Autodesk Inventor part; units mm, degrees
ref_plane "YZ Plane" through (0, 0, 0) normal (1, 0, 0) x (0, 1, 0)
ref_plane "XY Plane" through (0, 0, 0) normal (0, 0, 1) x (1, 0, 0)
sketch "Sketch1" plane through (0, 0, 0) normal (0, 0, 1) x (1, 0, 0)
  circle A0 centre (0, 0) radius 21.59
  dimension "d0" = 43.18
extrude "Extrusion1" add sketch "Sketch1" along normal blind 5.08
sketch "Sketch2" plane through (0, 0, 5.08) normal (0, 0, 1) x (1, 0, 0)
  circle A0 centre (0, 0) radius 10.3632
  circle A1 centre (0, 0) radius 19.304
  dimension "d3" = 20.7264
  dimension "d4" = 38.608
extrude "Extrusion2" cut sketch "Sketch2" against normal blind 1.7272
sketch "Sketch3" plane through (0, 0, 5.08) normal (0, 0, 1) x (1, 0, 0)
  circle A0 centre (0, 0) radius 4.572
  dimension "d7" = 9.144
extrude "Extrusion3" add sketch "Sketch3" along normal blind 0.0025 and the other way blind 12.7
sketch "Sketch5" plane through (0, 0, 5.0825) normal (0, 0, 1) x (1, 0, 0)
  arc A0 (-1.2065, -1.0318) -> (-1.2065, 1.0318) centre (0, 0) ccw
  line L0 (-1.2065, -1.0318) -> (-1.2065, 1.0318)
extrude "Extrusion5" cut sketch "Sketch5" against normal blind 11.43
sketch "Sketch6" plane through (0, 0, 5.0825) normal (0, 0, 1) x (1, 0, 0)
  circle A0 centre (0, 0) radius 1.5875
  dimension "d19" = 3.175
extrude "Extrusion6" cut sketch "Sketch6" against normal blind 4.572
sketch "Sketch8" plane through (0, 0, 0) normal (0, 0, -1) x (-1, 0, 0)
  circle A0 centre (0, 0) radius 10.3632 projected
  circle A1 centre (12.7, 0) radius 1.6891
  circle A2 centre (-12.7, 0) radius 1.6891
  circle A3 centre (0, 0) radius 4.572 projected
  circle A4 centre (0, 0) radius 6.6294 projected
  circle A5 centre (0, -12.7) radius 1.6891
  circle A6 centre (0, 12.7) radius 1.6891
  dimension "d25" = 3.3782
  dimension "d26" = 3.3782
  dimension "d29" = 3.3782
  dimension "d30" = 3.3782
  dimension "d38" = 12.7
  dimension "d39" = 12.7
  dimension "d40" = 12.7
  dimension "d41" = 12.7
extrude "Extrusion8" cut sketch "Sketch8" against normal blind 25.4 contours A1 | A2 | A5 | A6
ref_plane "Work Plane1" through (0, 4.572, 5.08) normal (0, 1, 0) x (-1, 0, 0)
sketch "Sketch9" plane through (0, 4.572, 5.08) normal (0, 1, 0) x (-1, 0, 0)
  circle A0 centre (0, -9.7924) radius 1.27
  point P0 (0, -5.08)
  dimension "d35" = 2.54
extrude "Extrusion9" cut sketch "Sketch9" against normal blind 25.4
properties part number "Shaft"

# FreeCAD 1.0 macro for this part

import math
import FreeCAD as App
import Part
import Sketcher
from FreeCAD import Vector
Q = App.Units.Quantity

doc = App.newDocument("Part")
body = doc.addObject("PartDesign::Body", "Body")

# Sketch on XY plane
sketch1 = body.newObject("Sketcher::SketchObject", "Sketch")
sketch1.AttachmentSupport = (doc.getObject("XY_Plane"), [""])
sketch1.MapMode = "FlatFace"
sketch1.addGeometry(Part.Circle(Vector(0, 0, 0), Vector(0, 0, 1), 22), False)
sketch1.addConstraint([
    Sketcher.Constraint("Coincident", 0, 3, -1, 1),
    Sketcher.Constraint("Diameter", 0, Q("1.7 in")),
])
pad1 = body.newObject("PartDesign::Pad", "Pad")
pad1.Profile = sketch1
pad1.Length = Q("0.2 in")

# Sketch on XY plane
sketch2 = body.newObject("Sketcher::SketchObject", "Sketch001")
sketch2.AttachmentSupport = (doc.getObject("XY_Plane"), [""])
sketch2.MapMode = "FlatFace"
sketch2.AttachmentOffset = App.Placement(Vector(0, 0, 0.2 * 25.4), App.Rotation())
sketch2.addGeometry([
    Part.Circle(Vector(0, 0, 0), Vector(0, 0, 1), 19),
    Part.Circle(Vector(0, 0, 0), Vector(0, 0, 1), 10),
], False)
sketch2.addConstraint([
    Sketcher.Constraint("Coincident", 0, 3, -1, 1),
    Sketcher.Constraint("Coincident", 1, 3, -1, 1),
    Sketcher.Constraint("Diameter", 0, Q("1.52 in")),
    Sketcher.Constraint("Diameter", 1, Q("0.816 in")),
])
pocket1 = body.newObject("PartDesign::Pocket", "Pocket")
pocket1.Profile = sketch2
pocket1.Length = Q("0.068 in")

# Sketch on XY plane
sketch3 = body.newObject("Sketcher::SketchObject", "Sketch002")
sketch3.AttachmentSupport = (doc.getObject("XY_Plane"), [""])
sketch3.MapMode = "FlatFace"
sketch3.AttachmentOffset = App.Placement(Vector(0, 0, 0.2 * 25.4), App.Rotation())
sketch3.addGeometry(Part.Circle(Vector(0, 0, 0), Vector(0, 0, 1), 4.6), False)
sketch3.addConstraint([
    Sketcher.Constraint("Coincident", 0, 3, -1, 1),
    Sketcher.Constraint("Diameter", 0, Q("0.36 in")),
])
pad2 = body.newObject("PartDesign::Pad", "Pad001")
pad2.Profile = sketch3
pad2.Type = "TwoLengths"
pad2.Length = Q("0.0000984 in")
pad2.Length2 = Q("0.5 in")

# Sketch on XY plane
sketch4 = body.newObject("Sketcher::SketchObject", "Sketch003")
sketch4.AttachmentSupport = (doc.getObject("XY_Plane"), [""])
sketch4.MapMode = "FlatFace"
sketch4.AttachmentOffset = App.Placement(Vector(0, 0, 0.2000984 * 25.4), App.Rotation())
sketch4.addGeometry([
    Part.LineSegment(Vector(-1.2, 1, 0), Vector(-1.2, -1, 0)),
    Part.ArcOfCircle(Part.Circle(Vector(0, 0, 0), Vector(0, 0, 1), 1.6), math.radians(-139), math.radians(139)),
], False)
sketch4.addConstraint([
    Sketcher.Constraint("Coincident", 0, 1, 1, 2),
    Sketcher.Constraint("Coincident", 1, 1, 0, 2),
    Sketcher.Constraint("Vertical", 0),
    Sketcher.Constraint("Coincident", 1, 3, -1, 1),
    Sketcher.Constraint("Radius", 1, Q("0.0625 in")),
    Sketcher.Constraint("DistanceY", 0, 2, 0, 1, 2.0636),
])
pocket2 = body.newObject("PartDesign::Pocket", "Pocket001")
pocket2.Profile = sketch4
pocket2.Length = Q("0.45 in")

# Sketch on XY plane
sketch5 = body.newObject("Sketcher::SketchObject", "Sketch004")
sketch5.AttachmentSupport = (doc.getObject("XY_Plane"), [""])
sketch5.MapMode = "FlatFace"
sketch5.AttachmentOffset = App.Placement(Vector(0, 0, 0.2000984 * 25.4), App.Rotation())
sketch5.addGeometry(Part.Circle(Vector(0, 0, 0), Vector(0, 0, 1), 1.6), False)
sketch5.addConstraint([
    Sketcher.Constraint("Coincident", 0, 3, -1, 1),
    Sketcher.Constraint("Diameter", 0, Q("0.125 in")),
])
pocket3 = body.newObject("PartDesign::Pocket", "Pocket002")
pocket3.Profile = sketch5
pocket3.Length = Q("0.18 in")

# Sketch on XY plane
sketch6 = body.newObject("Sketcher::SketchObject", "Sketch005")
sketch6.AttachmentSupport = (doc.getObject("XY_Plane"), [""])
sketch6.MapMode = "FlatFace"
sketch6.addGeometry([
    Part.Circle(Vector(-12.7, 0, 0), Vector(0, 0, 1), 1.7),
    Part.Circle(Vector(12.7, 0, 0), Vector(0, 0, 1), 1.7),
    Part.Circle(Vector(0, -12.7, 0), Vector(0, 0, 1), 1.7),
    Part.Circle(Vector(0, 12.7, 0), Vector(0, 0, 1), 1.7),
], False)
sketch6.addConstraint([
    Sketcher.Constraint("Equal", 0, 1),
    Sketcher.Constraint("Equal", 1, 2),
    Sketcher.Constraint("Equal", 2, 3),
    Sketcher.Constraint("Symmetric", 0, 3, 1, 3, -1, 1),
    Sketcher.Constraint("Symmetric", 2, 3, 3, 3, -1, 1),
    Sketcher.Constraint("PointOnObject", 0, 3, -1),
    Sketcher.Constraint("PointOnObject", 2, 3, -2),
    Sketcher.Constraint("Diameter", 0, Q("0.133 in")),
    Sketcher.Constraint("DistanceX", 0, 3, -1, 1, Q("0.5 in")),
    Sketcher.Constraint("DistanceY", 2, 3, -1, 1, Q("0.5 in")),
])
pocket4 = body.newObject("PartDesign::Pocket", "Pocket003")
pocket4.Profile = sketch6
pocket4.Length = Q("1 in")
pocket4.Reversed = True

# Sketch on XZ plane
sketch7 = body.newObject("Sketcher::SketchObject", "Sketch006")
sketch7.AttachmentSupport = (doc.getObject("XZ_Plane"), [""])
sketch7.MapMode = "FlatFace"
sketch7.AttachmentOffset = App.Placement(Vector(0, 0, -0.18 * 25.4), App.Rotation())
sketch7.addGeometry(Part.Circle(Vector(0, -4.7, 0), Vector(0, 0, 1), 1.3), False)
sketch7.addConstraint([
    Sketcher.Constraint("PointOnObject", 0, 3, -2),
    Sketcher.Constraint("Diameter", 0, Q("0.1 in")),
    Sketcher.Constraint("DistanceY", 0, 3, -1, 1, 4.7124),
])
pocket5 = body.newObject("PartDesign::Pocket", "Pocket004")
pocket5.Profile = sketch7
pocket5.Length = Q("1 in")
pocket5.Reversed = True

doc.recompute()
